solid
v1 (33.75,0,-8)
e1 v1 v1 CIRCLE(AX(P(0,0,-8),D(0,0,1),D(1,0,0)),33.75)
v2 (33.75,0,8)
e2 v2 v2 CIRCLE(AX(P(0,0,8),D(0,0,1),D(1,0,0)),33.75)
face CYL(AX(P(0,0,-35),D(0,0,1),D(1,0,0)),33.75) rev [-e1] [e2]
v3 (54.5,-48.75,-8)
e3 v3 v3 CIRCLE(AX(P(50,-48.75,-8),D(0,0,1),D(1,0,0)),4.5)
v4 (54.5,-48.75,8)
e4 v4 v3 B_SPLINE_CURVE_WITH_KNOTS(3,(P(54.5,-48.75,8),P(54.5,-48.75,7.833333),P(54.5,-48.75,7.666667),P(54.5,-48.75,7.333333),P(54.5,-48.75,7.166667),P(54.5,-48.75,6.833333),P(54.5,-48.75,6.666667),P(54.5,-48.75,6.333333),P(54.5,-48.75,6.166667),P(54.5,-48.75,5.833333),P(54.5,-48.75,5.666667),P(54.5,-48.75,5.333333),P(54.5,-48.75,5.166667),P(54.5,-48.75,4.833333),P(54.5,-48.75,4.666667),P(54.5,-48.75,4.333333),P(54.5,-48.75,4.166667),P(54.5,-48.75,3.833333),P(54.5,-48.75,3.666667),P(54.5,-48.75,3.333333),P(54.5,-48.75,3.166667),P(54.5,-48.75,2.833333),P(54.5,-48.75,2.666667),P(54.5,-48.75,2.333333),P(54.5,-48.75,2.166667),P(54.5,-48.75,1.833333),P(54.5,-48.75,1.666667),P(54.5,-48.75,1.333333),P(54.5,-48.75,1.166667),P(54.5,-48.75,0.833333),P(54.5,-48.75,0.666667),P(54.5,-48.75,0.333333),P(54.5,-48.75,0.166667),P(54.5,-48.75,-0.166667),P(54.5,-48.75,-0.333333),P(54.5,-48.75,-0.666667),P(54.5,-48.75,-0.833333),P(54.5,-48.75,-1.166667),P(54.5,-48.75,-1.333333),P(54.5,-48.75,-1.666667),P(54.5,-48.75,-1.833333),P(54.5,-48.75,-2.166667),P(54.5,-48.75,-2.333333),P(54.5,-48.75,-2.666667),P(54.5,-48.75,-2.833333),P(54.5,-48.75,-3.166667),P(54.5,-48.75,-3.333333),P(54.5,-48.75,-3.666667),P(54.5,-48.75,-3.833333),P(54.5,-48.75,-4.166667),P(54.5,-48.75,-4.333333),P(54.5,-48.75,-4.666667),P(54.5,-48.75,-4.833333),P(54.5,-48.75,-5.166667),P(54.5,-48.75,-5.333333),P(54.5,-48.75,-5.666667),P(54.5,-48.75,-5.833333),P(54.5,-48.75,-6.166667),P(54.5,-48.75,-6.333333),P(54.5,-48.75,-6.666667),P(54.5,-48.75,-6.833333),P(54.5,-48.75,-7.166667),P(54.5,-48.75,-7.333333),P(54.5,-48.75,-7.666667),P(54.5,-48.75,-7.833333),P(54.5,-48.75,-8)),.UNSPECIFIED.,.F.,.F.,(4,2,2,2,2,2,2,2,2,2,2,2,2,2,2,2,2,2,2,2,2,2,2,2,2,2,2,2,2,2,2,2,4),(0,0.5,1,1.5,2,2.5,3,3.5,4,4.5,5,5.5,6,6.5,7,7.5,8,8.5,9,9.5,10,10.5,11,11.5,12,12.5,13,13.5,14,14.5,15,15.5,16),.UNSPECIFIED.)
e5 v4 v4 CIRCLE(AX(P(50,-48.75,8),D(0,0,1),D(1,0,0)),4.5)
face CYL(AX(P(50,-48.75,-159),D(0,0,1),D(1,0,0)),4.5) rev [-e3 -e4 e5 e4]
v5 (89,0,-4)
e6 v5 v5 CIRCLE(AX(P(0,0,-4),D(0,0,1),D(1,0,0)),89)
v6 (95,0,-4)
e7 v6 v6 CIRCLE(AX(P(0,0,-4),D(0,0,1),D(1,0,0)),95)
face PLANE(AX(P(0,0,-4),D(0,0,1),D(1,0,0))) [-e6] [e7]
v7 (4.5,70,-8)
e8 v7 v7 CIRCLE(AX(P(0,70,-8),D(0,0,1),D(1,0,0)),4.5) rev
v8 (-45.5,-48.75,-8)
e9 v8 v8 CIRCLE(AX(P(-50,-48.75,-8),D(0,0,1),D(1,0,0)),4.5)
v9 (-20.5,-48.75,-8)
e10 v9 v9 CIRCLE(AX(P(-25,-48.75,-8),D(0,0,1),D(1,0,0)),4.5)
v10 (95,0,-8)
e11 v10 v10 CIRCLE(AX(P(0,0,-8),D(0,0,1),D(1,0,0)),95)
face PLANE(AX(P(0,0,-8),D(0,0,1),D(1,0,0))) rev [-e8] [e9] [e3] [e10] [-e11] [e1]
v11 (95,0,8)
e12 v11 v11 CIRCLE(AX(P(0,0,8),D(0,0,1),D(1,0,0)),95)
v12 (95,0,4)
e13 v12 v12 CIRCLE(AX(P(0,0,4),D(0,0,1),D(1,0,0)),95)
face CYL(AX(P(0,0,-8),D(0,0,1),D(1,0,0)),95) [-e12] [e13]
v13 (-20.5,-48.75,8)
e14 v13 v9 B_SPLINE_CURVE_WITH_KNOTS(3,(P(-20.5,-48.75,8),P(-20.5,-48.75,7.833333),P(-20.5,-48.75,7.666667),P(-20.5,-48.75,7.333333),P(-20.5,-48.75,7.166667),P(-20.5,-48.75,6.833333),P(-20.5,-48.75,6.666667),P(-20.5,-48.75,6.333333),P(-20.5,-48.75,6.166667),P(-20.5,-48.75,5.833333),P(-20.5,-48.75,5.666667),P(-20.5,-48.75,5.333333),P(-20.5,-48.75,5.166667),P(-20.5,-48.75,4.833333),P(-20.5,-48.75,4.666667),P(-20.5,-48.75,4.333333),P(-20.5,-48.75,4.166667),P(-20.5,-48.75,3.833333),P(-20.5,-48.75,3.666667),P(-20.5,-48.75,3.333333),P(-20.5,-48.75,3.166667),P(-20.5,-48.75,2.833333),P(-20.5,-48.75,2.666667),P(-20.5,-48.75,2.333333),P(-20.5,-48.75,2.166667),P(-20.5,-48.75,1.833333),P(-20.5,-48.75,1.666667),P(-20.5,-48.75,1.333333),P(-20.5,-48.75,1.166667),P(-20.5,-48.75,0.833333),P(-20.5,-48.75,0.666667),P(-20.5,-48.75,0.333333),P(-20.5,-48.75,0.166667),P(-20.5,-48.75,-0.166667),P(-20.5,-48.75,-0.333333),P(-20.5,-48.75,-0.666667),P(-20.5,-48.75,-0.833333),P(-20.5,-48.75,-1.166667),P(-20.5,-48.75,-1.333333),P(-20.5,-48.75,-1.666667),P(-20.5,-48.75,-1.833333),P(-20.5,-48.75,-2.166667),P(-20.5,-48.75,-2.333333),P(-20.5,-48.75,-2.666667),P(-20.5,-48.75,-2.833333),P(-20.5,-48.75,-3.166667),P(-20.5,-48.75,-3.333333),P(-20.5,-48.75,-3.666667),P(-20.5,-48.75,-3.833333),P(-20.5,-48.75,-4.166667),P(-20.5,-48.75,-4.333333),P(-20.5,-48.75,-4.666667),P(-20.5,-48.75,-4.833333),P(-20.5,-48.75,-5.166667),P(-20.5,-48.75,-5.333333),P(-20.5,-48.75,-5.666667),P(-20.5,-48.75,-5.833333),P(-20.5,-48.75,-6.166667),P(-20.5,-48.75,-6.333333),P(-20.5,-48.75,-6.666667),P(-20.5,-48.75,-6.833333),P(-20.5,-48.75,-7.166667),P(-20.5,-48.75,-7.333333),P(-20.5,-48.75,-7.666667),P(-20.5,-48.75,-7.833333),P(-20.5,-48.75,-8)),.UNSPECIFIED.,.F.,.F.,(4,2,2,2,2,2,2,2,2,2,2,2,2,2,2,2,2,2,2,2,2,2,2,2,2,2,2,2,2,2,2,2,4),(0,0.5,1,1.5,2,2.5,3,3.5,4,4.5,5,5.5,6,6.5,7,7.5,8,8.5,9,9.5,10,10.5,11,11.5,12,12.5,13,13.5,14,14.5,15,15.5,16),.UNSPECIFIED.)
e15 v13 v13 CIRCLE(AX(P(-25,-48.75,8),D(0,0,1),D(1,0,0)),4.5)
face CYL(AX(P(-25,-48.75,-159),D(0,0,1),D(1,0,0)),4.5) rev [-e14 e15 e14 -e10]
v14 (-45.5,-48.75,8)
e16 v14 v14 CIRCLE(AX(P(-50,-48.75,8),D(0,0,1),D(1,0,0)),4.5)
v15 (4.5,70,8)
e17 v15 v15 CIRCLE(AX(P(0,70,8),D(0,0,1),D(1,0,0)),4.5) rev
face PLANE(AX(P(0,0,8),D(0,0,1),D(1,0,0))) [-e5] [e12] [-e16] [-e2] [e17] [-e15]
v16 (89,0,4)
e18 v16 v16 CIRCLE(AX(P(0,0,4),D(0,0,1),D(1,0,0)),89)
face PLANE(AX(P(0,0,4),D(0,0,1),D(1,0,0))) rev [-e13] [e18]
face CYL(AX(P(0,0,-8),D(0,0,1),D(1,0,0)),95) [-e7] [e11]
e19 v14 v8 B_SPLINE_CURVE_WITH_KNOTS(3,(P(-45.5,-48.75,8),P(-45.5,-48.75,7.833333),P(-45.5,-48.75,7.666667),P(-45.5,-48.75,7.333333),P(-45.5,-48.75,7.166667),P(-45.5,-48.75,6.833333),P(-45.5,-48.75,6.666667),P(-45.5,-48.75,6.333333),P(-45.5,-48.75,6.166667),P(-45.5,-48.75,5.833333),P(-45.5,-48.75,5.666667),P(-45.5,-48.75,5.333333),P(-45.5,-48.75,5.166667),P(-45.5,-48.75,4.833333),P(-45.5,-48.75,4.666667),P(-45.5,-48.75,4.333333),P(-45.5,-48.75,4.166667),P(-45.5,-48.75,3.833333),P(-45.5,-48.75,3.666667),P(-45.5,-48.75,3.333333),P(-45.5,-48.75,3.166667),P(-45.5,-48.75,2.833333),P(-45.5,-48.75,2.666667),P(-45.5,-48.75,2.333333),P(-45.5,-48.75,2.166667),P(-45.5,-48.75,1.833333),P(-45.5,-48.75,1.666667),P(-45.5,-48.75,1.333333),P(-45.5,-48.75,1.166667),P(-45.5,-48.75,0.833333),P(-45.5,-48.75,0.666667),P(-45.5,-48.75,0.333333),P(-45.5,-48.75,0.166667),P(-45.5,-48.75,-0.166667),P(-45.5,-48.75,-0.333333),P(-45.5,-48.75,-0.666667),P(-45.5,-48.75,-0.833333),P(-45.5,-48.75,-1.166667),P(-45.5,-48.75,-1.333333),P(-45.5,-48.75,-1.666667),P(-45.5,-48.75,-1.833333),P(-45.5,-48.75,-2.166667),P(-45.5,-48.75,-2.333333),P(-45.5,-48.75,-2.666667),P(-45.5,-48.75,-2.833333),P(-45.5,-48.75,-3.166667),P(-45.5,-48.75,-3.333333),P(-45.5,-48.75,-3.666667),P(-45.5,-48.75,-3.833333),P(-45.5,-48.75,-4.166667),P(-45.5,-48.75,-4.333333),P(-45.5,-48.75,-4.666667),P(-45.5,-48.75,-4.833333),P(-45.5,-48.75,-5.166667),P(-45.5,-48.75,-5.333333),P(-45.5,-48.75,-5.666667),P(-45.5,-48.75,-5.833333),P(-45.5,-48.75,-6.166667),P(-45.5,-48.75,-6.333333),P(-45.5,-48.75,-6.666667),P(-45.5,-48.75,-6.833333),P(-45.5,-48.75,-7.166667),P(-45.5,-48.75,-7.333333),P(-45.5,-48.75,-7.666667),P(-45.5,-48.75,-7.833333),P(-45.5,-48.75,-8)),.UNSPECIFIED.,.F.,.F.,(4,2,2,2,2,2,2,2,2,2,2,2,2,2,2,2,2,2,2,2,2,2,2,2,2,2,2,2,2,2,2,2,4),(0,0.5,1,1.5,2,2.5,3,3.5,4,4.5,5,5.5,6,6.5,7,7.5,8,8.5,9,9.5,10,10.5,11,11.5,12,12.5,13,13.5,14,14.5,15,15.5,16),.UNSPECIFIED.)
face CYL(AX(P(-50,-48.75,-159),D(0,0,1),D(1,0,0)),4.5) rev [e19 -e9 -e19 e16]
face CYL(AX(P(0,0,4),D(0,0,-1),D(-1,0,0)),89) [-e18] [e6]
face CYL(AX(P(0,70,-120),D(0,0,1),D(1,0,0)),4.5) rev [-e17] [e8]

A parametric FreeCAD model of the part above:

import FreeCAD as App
import Part
import Sketcher
from FreeCAD import Vector

doc = App.newDocument("Part")
body = doc.addObject("PartDesign::Body", "Body")

sketch1 = body.newObject("Sketcher::SketchObject", "Sketch")
sketch1.AttachmentSupport = (doc.getObject("XY_Plane"), [""])
sketch1.MapMode = "FlatFace"
sketch1.addGeometry(Part.Circle(Vector(0, 0, 0), Vector(0, 0, 1), 95), False)
sketch1.addConstraint([
    Sketcher.Constraint("Coincident", 0, 3, -1, 1),
    Sketcher.Constraint("Diameter", 0, 190.0),
])
pad1 = body.newObject("PartDesign::Pad", "Pad")
pad1.Profile = sketch1
pad1.Type = "TwoLengths"
pad1.Length = 8
pad1.Length2 = 8

sketch2 = body.newObject("Sketcher::SketchObject", "Sketch001")
sketch2.AttachmentSupport = (doc.getObject("XY_Plane"), [""])
sketch2.MapMode = "FlatFace"
sketch2.addGeometry([
    Part.Circle(Vector(0, 0, 0), Vector(0, 0, 1), 95),
    Part.Circle(Vector(0, 0, 0), Vector(0, 0, 1), 89),
], False)
sketch2.addConstraint([
    Sketcher.Constraint("Coincident", 0, 3, -1, 1),
    Sketcher.Constraint("Coincident", 1, 3, -1, 1),
    Sketcher.Constraint("Diameter", 0, 190.0),
    Sketcher.Constraint("Diameter", 1, 178.0),
])
pocket1 = body.newObject("PartDesign::Pocket", "Pocket")
pocket1.Profile = sketch2
pocket1.Type = "TwoLengths"
pocket1.Length = 4
pocket1.Length2 = 4
pocket1.Reversed = True

sketch3 = body.newObject("Sketcher::SketchObject", "Sketch002")
sketch3.AttachmentSupport = (doc.getObject("XY_Plane"), [""])
sketch3.MapMode = "FlatFace"
sketch3.AttachmentOffset = App.Placement(Vector(0, 0, 8), App.Rotation())
sketch3.addGeometry([
    Part.Circle(Vector(-50, -48.8, 0), Vector(0, 0, 1), 4.5),
    Part.Circle(Vector(50, -48.8, 0), Vector(0, 0, 1), 4.5),
    Part.Circle(Vector(-25, -48.8, 0), Vector(0, 0, 1), 4.5),
], False)
sketch3.addConstraint([
    Sketcher.Constraint("Equal", 0, 1),
    Sketcher.Constraint("Equal", 1, 2),
    Sketcher.Constraint("Symmetric", 0, 3, 1, 3, -2),
    Sketcher.Constraint("Horizontal", 1, 3, 2, 3),
    Sketcher.Constraint("Diameter", 0, 9.0),
    Sketcher.Constraint("DistanceX", 0, 3, -1, 1, 50.0),
    Sketcher.Constraint("DistanceX", 2, 3, -1, 1, 25.0),
    Sketcher.Constraint("DistanceY", 0, 3, -1, 1, 48.75),
])
pocket2 = body.newObject("PartDesign::Pocket", "Pocket001")
pocket2.Profile = sketch3
pocket2.Length = 167

sketch4 = body.newObject("Sketcher::SketchObject", "Sketch003")
sketch4.AttachmentSupport = (doc.getObject("XY_Plane"), [""])
sketch4.MapMode = "FlatFace"
sketch4.AttachmentOffset = App.Placement(Vector(0, 0, 8), App.Rotation())
sketch4.addGeometry(Part.Circle(Vector(0, 0, 0), Vector(0, 0, 1), 34), False)
sketch4.addConstraint([
    Sketcher.Constraint("Coincident", 0, 3, -1, 1),
    Sketcher.Constraint("Diameter", 0, 67.5),
])
pocket3 = body.newObject("PartDesign::Pocket", "Pocket002")
pocket3.Profile = sketch4
pocket3.Length = 43

sketch5 = body.newObject("Sketcher::SketchObject", "Sketch004")
sketch5.AttachmentSupport = (doc.getObject("XY_Plane"), [""])
sketch5.MapMode = "FlatFace"
sketch5.AttachmentOffset = App.Placement(Vector(0, 0, -8), App.Rotation())
sketch5.addGeometry(Part.Circle(Vector(0, 70, 0), Vector(0, 0, 1), 4.5), False)
sketch5.addConstraint([
    Sketcher.Constraint("PointOnObject", 0, 3, -2),
    Sketcher.Constraint("Diameter", 0, 9.0),
    Sketcher.Constraint("DistanceY", -1, 1, 0, 3, 70.0),
])
pocket4 = body.newObject("PartDesign::Pocket", "Pocket003")
pocket4.Profile = sketch5
pocket4.Type = "ThroughAll"
pocket4.Midplane = True

doc.recompute()
